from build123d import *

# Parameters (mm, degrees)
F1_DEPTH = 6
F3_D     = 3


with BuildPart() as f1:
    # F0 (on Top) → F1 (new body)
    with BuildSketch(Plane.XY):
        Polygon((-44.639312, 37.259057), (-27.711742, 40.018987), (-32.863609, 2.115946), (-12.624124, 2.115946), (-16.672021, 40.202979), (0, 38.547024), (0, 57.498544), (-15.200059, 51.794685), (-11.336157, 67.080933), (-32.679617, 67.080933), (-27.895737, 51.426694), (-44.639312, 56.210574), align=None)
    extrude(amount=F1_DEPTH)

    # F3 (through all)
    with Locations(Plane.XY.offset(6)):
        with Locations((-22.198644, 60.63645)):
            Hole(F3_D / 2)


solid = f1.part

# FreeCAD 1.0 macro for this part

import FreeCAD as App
import Part
import Sketcher
Q = App.Units.Quantity


def add_polygon(sketch, points):
    """Adds a closed chain of lines whose ends are joined by coincident constraints."""
    first, n = sketch.GeometryCount, len(points)
    for a, b in zip(points, points[1:] + points[:1]):
        sketch.addGeometry(Part.LineSegment(App.Vector(*a, 0), App.Vector(*b, 0)), False)
    for i in range(n):
        sketch.addConstraint(Sketcher.Constraint("Coincident", first + i, 2, first + (i + 1) % n, 1))

doc = App.newDocument("Part")
body = doc.addObject("PartDesign::Body", "Body")

# Sketch on XY plane
sketch1 = doc.addObject("Sketcher::SketchObject", "Sketch")
body.addObject(sketch1)
sketch1.AttachmentSupport = (doc.XY_Plane, [""])
sketch1.MapMode = "FlatFace"
add_polygon(sketch1, [(-44.639312, 37.259057), (-27.711742, 40.018987), (-32.863609, 2.115946), (-12.624124, 2.115946), (-16.672021, 40.202979), (0, 38.547024), (0, 57.498544), (-15.200059, 51.794685), (-11.336157, 67.080933), (-32.679617, 67.080933), (-27.895737, 51.426694), (-44.639312, 56.210574)])  # lines 0-11
sketch1.addConstraint(Sketcher.Constraint("Horizontal", 2))
sketch1.addConstraint(Sketcher.Constraint("Vertical", 5))
sketch1.addConstraint(Sketcher.Constraint("Horizontal", 8))
sketch1.addConstraint(Sketcher.Constraint("Vertical", 11))
sketch1.addConstraint(Sketcher.Constraint("PointOnObject", 4, 2, -2))
sketch1.addConstraint(Sketcher.Constraint("DistanceX", 8, 2, 8, 1, Q("21.34346 mm")))
sketch1.addConstraint(Sketcher.Constraint("DistanceY", 5, 1, 5, 2, Q("18.95152 mm")))
sketch1.addConstraint(Sketcher.Constraint("DistanceY", 2, 2, 5, 2, Q("55.382598 mm")))
sketch1.addConstraint(Sketcher.Constraint("DistanceX", 6, 2, 7, 2, Q("3.863902 mm")))
sketch1.addConstraint(Sketcher.Constraint("Distance", 0, Q("17.151089 mm")))
sketch1.addConstraint(Sketcher.Constraint("Distance", 4, Q("16.754058 mm")))
sketch1.addConstraint(Sketcher.Constraint("Distance", 10, Q("17.413581 mm")))
sketch1.addConstraint(Sketcher.Constraint("DistanceX", 2, 1, 2, 2, Q("20.239485 mm")))
sketch1.addConstraint(Sketcher.Constraint("DistanceY", 11, 2, 11, 1, Q("18.951517 mm")))
sketch1.addConstraint(Sketcher.Constraint("DistanceX", 1, 2, -1, 1, Q("32.863609 mm")))
sketch1.addConstraint(Sketcher.Constraint("DistanceX", 3, 2, -1, 1, Q("16.672021 mm")))
sketch1.addConstraint(Sketcher.Constraint("DistanceY", -1, 1, 3, 2, Q("40.202979 mm")))
sketch1.addConstraint(Sketcher.Constraint("DistanceX", 6, 2, -1, 1, Q("15.200059 mm")))
sketch1.addConstraint(Sketcher.Constraint("DistanceX", 10, 2, -1, 1, Q("44.639312 mm")))
sketch1.addConstraint(Sketcher.Constraint("DistanceY", 1, 2, 0, 2, Q("37.903041 mm")))
sketch1.addConstraint(Sketcher.Constraint("DistanceX", 0, 2, 2, 2, Q("15.087618 mm")))
sketch1.addConstraint(Sketcher.Constraint("DistanceY", 6, 2, 5, 2, Q("5.703859 mm")))
sketch1.addConstraint(Sketcher.Constraint("DistanceY", 5, 2, 7, 2, Q("9.582389 mm")))
sketch1.addConstraint(Sketcher.Constraint("DistanceX", 9, 2, 6, 2, Q("12.695678 mm")))
pad1 = doc.addObject("PartDesign::Pad", "Pad")
body.addObject(pad1)
pad1.Profile = sketch1
pad1.Length = 6

# Sketch on XY plane
sketch2 = doc.addObject("Sketcher::SketchObject", "Sketch001")
body.addObject(sketch2)
sketch2.AttachmentSupport = (doc.XY_Plane, [""])
sketch2.MapMode = "FlatFace"
sketch2.AttachmentOffset = App.Placement(App.Vector(0, 0, 6), App.Rotation())
sketch2.addGeometry(Part.Circle(App.Vector(-22.198644, 60.63645, 0), App.Vector(0, 0, 1), 1.5), False)
sketch2.addConstraint(Sketcher.Constraint("Diameter", 0, Q("3 mm")))
sketch2.addConstraint(Sketcher.Constraint("DistanceY", -1, 1, 0, 3, Q("60.63645 mm")))
sketch2.addConstraint(Sketcher.Constraint("DistanceX", 0, 3, -1, 1, Q("22.198644 mm")))
doc.recompute()
hole = doc.addObject("PartDesign::Hole", "Hole")
body.addObject(hole)
hole.Profile = sketch2
hole.ThreadType = "None"
hole.Diameter = 3
hole.DepthType = "ThroughAll"

doc.recompute()
